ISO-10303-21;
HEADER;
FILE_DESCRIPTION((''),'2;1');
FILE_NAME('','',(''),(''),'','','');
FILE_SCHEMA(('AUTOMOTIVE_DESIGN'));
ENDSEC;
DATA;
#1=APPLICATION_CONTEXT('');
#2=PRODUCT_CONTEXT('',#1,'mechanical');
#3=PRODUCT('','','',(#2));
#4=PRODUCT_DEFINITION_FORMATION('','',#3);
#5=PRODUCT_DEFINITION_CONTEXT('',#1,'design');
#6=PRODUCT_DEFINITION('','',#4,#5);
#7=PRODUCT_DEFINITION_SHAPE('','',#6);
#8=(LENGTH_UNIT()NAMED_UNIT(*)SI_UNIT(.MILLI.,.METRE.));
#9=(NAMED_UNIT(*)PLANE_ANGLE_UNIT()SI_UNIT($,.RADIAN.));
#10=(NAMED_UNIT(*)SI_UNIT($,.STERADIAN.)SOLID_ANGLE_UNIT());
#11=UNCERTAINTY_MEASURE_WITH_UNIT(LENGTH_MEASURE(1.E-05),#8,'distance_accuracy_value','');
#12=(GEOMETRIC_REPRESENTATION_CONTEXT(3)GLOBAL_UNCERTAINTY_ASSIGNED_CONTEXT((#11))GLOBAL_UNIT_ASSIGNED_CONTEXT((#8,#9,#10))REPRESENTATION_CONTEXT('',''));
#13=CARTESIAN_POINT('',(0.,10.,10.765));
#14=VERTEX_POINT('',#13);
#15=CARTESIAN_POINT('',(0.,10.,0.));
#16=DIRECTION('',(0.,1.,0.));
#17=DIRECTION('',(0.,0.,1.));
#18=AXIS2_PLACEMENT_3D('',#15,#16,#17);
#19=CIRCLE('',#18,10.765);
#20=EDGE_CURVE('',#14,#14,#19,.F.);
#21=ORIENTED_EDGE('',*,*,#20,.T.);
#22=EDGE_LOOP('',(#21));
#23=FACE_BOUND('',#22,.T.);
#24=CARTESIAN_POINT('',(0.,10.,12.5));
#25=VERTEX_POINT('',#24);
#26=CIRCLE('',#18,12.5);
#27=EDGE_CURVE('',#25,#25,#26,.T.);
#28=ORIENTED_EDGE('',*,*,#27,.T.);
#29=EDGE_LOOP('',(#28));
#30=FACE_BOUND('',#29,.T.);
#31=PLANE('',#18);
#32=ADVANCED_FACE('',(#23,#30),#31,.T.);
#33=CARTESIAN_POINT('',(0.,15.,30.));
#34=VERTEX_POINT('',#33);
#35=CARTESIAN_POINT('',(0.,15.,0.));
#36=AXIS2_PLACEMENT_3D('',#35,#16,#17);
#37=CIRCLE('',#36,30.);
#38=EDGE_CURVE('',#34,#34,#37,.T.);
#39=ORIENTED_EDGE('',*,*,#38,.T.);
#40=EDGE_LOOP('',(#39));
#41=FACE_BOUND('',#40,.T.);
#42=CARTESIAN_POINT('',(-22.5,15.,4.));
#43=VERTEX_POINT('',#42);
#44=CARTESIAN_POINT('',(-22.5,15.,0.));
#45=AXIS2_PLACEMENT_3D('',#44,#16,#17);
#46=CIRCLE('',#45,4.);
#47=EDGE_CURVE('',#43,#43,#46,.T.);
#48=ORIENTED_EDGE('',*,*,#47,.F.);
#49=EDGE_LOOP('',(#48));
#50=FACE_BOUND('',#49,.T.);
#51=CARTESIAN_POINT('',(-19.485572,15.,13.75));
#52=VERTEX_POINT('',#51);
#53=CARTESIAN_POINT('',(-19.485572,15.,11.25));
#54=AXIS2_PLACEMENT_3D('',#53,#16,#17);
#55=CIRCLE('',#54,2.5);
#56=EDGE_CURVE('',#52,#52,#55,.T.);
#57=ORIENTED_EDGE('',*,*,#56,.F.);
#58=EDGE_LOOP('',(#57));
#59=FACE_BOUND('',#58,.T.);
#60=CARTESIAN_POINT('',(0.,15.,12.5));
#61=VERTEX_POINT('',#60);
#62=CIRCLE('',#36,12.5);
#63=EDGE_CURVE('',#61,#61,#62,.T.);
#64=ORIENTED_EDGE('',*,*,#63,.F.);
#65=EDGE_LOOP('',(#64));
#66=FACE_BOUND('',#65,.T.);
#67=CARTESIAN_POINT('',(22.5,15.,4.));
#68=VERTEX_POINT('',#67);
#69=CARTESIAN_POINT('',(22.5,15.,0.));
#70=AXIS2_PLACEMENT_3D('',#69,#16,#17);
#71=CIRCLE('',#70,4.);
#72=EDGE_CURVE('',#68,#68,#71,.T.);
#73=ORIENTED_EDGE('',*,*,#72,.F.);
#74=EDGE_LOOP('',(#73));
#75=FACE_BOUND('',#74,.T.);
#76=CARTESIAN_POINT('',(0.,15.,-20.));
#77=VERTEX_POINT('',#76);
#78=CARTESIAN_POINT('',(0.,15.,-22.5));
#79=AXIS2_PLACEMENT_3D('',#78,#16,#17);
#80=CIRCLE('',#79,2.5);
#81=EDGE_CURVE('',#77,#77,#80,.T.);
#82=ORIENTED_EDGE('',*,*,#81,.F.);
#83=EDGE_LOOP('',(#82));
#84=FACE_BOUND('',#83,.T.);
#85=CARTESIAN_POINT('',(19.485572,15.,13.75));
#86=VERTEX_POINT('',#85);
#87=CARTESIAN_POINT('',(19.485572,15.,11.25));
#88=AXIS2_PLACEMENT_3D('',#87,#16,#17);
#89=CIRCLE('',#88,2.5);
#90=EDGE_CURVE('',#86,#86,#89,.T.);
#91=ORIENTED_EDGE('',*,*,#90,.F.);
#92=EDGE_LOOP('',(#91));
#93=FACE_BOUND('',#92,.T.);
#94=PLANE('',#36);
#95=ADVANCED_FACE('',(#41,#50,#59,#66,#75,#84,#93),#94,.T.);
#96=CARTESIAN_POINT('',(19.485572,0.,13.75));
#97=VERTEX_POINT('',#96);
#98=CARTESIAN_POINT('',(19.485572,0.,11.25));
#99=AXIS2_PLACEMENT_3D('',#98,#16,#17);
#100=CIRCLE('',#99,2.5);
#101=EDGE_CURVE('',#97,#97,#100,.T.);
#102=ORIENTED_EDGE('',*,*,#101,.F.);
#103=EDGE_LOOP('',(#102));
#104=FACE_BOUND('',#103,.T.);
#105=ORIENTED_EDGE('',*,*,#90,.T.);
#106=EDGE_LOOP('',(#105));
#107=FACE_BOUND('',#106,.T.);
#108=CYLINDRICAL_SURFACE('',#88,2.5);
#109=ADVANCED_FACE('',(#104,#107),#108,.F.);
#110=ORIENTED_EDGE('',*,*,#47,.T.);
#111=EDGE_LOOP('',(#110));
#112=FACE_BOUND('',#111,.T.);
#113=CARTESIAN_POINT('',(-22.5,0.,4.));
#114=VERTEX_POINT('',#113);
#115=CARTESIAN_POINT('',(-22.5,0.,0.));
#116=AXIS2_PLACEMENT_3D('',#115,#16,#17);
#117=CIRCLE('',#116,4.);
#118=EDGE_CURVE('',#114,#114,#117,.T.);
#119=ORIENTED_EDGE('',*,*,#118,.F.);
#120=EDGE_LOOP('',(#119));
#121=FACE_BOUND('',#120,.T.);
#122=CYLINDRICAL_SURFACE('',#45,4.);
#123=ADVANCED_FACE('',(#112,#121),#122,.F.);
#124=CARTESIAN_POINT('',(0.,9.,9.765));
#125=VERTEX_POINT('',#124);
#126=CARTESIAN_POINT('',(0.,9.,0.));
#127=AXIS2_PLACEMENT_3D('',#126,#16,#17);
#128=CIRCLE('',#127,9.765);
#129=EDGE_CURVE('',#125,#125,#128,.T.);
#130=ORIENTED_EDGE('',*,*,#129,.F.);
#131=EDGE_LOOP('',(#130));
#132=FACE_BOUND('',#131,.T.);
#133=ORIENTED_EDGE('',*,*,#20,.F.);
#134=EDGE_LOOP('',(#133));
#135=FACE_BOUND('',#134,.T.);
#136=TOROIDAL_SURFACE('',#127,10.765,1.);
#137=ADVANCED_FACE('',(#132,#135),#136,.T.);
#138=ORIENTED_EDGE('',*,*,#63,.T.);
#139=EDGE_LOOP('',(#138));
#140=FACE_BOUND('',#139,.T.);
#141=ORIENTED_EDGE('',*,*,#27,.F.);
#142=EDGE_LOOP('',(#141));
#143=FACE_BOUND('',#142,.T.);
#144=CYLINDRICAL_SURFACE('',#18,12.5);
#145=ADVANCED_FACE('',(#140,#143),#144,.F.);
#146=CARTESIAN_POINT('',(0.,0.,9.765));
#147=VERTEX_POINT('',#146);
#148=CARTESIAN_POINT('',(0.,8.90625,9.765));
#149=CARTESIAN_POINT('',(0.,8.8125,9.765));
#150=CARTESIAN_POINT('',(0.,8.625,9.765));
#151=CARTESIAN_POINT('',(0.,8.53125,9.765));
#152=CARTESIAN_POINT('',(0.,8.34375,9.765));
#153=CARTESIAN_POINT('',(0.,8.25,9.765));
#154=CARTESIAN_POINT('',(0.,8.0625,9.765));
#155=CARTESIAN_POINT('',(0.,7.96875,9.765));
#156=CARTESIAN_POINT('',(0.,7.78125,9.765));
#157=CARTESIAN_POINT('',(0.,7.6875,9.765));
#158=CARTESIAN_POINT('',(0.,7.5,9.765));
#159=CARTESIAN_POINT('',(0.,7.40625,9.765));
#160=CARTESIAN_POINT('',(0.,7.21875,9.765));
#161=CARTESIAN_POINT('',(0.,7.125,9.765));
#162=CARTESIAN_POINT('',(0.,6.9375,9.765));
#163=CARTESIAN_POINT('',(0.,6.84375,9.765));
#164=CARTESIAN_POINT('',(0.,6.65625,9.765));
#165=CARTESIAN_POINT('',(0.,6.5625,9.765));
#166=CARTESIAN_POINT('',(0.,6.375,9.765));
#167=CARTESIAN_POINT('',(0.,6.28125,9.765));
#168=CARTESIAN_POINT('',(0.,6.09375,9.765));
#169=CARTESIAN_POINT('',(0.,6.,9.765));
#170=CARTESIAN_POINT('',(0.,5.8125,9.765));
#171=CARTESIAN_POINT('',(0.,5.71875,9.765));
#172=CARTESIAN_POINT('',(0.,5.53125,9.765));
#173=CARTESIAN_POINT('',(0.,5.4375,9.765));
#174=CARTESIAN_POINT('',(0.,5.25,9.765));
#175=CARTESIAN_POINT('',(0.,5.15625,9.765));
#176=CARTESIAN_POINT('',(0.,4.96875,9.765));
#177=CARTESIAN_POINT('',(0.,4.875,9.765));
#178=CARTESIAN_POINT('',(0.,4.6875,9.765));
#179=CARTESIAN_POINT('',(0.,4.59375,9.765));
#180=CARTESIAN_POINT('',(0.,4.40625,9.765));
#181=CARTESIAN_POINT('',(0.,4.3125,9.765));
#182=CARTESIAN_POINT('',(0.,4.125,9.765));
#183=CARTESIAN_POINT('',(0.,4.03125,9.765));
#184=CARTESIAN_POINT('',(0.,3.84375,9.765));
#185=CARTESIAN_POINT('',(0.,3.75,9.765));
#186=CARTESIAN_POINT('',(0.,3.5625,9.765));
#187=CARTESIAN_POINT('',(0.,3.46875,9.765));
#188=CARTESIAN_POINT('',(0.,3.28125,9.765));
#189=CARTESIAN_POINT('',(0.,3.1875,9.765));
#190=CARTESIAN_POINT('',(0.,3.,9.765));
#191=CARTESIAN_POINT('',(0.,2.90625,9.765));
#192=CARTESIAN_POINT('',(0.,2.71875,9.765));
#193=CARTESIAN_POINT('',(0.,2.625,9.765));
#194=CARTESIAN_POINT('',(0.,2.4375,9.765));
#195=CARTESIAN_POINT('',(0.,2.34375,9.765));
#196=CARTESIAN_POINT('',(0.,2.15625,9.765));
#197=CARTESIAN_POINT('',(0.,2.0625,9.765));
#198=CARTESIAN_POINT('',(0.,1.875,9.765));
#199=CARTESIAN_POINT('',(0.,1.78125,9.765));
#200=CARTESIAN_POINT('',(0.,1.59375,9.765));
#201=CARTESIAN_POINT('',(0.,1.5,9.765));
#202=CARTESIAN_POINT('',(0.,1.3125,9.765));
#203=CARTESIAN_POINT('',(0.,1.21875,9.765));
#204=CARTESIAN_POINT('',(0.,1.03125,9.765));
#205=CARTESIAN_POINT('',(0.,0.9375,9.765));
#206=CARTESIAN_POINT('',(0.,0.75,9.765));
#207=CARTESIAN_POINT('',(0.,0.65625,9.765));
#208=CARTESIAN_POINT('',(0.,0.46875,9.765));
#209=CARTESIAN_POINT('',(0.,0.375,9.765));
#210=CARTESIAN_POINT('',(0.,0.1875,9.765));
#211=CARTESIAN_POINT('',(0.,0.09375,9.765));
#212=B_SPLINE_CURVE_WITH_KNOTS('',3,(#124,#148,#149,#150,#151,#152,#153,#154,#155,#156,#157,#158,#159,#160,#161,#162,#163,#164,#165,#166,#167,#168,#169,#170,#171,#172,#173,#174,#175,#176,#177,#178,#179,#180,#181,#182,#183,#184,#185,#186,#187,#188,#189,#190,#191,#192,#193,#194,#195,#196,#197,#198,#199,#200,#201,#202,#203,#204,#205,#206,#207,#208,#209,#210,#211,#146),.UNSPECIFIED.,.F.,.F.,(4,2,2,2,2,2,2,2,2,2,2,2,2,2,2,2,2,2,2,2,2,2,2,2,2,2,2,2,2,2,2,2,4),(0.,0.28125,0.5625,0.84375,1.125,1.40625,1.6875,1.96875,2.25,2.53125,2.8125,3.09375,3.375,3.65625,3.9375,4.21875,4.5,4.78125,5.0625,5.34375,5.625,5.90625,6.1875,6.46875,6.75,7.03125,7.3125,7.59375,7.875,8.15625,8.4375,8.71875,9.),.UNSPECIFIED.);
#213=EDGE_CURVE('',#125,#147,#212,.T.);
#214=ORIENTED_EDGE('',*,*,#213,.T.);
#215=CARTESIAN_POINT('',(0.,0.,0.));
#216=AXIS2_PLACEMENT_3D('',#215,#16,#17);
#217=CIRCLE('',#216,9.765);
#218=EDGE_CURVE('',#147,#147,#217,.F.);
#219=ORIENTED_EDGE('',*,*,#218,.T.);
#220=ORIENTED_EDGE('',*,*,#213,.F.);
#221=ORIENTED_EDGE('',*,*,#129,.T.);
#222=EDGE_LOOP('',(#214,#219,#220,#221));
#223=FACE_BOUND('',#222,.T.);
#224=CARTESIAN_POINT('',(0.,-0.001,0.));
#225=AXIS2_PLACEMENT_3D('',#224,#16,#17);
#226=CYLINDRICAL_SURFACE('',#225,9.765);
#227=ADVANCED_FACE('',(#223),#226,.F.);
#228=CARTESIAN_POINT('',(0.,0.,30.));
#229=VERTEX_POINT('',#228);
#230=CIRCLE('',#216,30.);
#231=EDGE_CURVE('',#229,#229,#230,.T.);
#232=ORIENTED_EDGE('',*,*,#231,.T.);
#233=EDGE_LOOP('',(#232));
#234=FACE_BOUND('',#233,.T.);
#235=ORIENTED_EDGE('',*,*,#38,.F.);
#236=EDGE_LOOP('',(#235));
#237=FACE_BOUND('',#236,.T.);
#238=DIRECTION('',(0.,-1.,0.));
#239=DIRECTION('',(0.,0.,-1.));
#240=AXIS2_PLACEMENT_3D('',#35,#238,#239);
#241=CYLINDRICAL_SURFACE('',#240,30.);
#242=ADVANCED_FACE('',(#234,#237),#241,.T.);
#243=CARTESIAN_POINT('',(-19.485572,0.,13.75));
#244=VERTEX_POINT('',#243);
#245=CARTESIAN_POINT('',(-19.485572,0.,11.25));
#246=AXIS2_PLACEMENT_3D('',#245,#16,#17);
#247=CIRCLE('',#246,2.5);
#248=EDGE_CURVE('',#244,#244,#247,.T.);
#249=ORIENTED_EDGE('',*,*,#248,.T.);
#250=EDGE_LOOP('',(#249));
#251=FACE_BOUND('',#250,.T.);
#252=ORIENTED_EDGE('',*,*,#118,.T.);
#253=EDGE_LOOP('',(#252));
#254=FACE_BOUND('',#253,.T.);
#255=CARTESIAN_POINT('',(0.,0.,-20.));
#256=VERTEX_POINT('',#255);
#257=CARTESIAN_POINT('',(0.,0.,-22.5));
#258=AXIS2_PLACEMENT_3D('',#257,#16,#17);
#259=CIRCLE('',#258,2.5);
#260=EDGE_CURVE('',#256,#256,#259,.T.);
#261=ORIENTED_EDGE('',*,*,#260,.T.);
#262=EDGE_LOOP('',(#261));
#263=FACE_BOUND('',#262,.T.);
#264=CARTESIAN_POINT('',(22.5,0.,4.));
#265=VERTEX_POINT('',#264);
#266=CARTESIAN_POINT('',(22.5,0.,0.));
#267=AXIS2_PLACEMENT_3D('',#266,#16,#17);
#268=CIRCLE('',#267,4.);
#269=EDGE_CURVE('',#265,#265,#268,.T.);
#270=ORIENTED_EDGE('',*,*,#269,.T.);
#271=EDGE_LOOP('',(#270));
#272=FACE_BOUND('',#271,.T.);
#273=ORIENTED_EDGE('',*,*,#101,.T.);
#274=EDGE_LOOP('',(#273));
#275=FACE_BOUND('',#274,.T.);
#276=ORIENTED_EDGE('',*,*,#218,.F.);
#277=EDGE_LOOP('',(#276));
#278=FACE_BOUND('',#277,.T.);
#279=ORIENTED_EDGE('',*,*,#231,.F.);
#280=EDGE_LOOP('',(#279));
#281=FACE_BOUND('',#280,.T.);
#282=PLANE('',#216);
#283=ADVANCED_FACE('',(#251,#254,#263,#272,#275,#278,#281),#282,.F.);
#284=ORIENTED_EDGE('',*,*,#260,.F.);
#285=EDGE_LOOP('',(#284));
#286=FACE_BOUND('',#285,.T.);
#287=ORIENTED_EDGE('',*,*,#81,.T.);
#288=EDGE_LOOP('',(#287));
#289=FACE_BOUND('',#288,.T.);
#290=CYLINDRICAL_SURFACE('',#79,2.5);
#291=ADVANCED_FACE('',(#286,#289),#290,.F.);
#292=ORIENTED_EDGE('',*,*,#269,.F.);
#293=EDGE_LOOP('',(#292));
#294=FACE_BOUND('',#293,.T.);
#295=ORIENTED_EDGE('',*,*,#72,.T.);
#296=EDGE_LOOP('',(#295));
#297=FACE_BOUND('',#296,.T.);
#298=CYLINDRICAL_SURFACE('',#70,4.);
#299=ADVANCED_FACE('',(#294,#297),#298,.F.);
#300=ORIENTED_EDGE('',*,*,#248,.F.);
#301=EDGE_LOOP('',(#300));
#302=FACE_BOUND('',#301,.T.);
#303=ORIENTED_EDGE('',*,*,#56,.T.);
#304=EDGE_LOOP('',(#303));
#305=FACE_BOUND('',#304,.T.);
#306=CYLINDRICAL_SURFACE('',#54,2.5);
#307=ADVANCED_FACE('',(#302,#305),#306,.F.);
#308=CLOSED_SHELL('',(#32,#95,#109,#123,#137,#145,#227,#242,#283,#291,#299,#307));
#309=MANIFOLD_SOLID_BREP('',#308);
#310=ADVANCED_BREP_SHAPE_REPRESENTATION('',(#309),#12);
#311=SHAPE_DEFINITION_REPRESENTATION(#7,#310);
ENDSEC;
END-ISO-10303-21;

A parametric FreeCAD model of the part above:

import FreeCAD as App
import Part
import Sketcher
from FreeCAD import Vector


def edges_at(feature, points):
    """Names of the edges that pass closest to the given points."""
    edges = feature.Shape.Edges
    near = lambda p: min(range(len(edges)), key=lambda i: edges[i].distToShape(Part.Vertex(*p))[0])
    return sorted({f"Edge{near(p) + 1}" for p in points})

doc = App.newDocument("Part")
body = doc.addObject("PartDesign::Body", "Body")

# Sketch on XZ plane
sketch1 = body.newObject("Sketcher::SketchObject", "Sketch")
sketch1.AttachmentSupport = (doc.getObject("XZ_Plane"), [""])
sketch1.MapMode = "FlatFace"
sketch1.addGeometry(Part.Circle(Vector(0, 0, 0), Vector(0, 0, 1), 30), False)
sketch1.addConstraint([
    Sketcher.Constraint("Coincident", 0, 3, -1, 1),
    Sketcher.Constraint("Diameter", 0, 60.0),
])
pad1 = body.newObject("PartDesign::Pad", "Pad")
pad1.Profile = sketch1
pad1.Length = 15
pad1.Reversed = True

# Sketch on XZ plane
sketch2 = body.newObject("Sketcher::SketchObject", "Sketch001")
sketch2.AttachmentSupport = (doc.getObject("XZ_Plane"), [""])
sketch2.MapMode = "FlatFace"
sketch2.AttachmentOffset = App.Placement(Vector(0, 0, -15), App.Rotation())
sketch2.addGeometry(Part.Circle(Vector(0, 0, 0), Vector(0, 0, 1), 10), False)
sketch2.addConstraint([
    Sketcher.Constraint("Coincident", 0, 3, -1, 1),
    Sketcher.Constraint("Diameter", 0, 19.53),
])
pocket1 = body.newObject("PartDesign::Pocket", "Pocket")
pocket1.Profile = sketch2
pocket1.Type = "UpToFirst"
pocket1.Reversed = True

# Sketch on XZ plane
sketch3 = body.newObject("Sketcher::SketchObject", "Sketch002")
sketch3.AttachmentSupport = (doc.getObject("XZ_Plane"), [""])
sketch3.MapMode = "FlatFace"
sketch3.AttachmentOffset = App.Placement(Vector(0, 0, -15), App.Rotation())
sketch3.addGeometry(Part.Circle(Vector(0, 0, 0), Vector(0, 0, 1), 12), False)
sketch3.addConstraint([
    Sketcher.Constraint("Coincident", 0, 3, -1, 1),
    Sketcher.Constraint("Diameter", 0, 25.0),
])
pocket2 = body.newObject("PartDesign::Pocket", "Pocket001")
pocket2.Profile = sketch3
pocket2.Length = 5
pocket2.Reversed = True
doc.recompute()

fillet = body.newObject("PartDesign::Fillet", "Fillet")
fillet.Base = (pocket2, edges_at(pocket2, [(0, 10, -9.765)]))
fillet.Radius = 1

# Sketch on XZ plane
sketch4 = body.newObject("Sketcher::SketchObject", "Sketch003")
sketch4.AttachmentSupport = (doc.getObject("XZ_Plane"), [""])
sketch4.MapMode = "FlatFace"
sketch4.AttachmentOffset = App.Placement(Vector(0, 0, -15), App.Rotation())
sketch4.addGeometry([
    Part.Circle(Vector(0, -22.5, 0), Vector(0, 0, 1), 2.5),
    Part.Circle(Vector(19.5, 11.2, 0), Vector(0, 0, 1), 2.5),
    Part.Circle(Vector(-19.5, 11.2, 0), Vector(0, 0, 1), 2.5),
], False)
sketch4.addConstraint([
    Sketcher.Constraint("Equal", 0, 1),
    Sketcher.Constraint("Equal", 1, 2),
    Sketcher.Constraint("Symmetric", 1, 3, 2, 3, -2),
    Sketcher.Constraint("PointOnObject", 0, 3, -2),
    Sketcher.Constraint("Diameter", 0, 5.0),
    Sketcher.Constraint("DistanceY", 0, 3, -1, 1, 22.5),
    Sketcher.Constraint("DistanceY", -1, 1, 1, 3, 11.25),
    Sketcher.Constraint("DistanceX", -1, 1, 1, 3, 19.485572),
])
doc.recompute()
hole = body.newObject("PartDesign::Hole", "Hole")
hole.Profile = sketch4
hole.ThreadType = "None"
hole.Diameter = 5
hole.DepthType = "Dimension"
hole.Depth = 17
hole.DrillPoint = "Angled"
hole.DrillPointAngle = 118
hole.Reversed = True

# Sketch on XZ plane
sketch5 = body.newObject("Sketcher::SketchObject", "Sketch004")
sketch5.AttachmentSupport = (doc.getObject("XZ_Plane"), [""])
sketch5.MapMode = "FlatFace"
sketch5.AttachmentOffset = App.Placement(Vector(0, 0, -15), App.Rotation())
sketch5.addGeometry([
    Part.Circle(Vector(22.5, 0, 0), Vector(0, 0, 1), 4),
    Part.Circle(Vector(-22.5, 0, 0), Vector(0, 0, 1), 4),
], False)
sketch5.addConstraint([
    Sketcher.Constraint("Equal", 0, 1),
    Sketcher.Constraint("Symmetric", 0, 3, 1, 3, -1, 1),
    Sketcher.Constraint("PointOnObject", 0, 3, -1),
    Sketcher.Constraint("Diameter", 0, 8.0),
    Sketcher.Constraint("DistanceX", 1, 3, 0, 3, 45.0),
])
doc.recompute()
hole2 = body.newObject("PartDesign::Hole", "Hole001")
hole2.Profile = sketch5
hole2.ThreadType = "None"
hole2.Diameter = 8
hole2.DepthType = "ThroughAll"
hole2.Reversed = True

doc.recompute()
